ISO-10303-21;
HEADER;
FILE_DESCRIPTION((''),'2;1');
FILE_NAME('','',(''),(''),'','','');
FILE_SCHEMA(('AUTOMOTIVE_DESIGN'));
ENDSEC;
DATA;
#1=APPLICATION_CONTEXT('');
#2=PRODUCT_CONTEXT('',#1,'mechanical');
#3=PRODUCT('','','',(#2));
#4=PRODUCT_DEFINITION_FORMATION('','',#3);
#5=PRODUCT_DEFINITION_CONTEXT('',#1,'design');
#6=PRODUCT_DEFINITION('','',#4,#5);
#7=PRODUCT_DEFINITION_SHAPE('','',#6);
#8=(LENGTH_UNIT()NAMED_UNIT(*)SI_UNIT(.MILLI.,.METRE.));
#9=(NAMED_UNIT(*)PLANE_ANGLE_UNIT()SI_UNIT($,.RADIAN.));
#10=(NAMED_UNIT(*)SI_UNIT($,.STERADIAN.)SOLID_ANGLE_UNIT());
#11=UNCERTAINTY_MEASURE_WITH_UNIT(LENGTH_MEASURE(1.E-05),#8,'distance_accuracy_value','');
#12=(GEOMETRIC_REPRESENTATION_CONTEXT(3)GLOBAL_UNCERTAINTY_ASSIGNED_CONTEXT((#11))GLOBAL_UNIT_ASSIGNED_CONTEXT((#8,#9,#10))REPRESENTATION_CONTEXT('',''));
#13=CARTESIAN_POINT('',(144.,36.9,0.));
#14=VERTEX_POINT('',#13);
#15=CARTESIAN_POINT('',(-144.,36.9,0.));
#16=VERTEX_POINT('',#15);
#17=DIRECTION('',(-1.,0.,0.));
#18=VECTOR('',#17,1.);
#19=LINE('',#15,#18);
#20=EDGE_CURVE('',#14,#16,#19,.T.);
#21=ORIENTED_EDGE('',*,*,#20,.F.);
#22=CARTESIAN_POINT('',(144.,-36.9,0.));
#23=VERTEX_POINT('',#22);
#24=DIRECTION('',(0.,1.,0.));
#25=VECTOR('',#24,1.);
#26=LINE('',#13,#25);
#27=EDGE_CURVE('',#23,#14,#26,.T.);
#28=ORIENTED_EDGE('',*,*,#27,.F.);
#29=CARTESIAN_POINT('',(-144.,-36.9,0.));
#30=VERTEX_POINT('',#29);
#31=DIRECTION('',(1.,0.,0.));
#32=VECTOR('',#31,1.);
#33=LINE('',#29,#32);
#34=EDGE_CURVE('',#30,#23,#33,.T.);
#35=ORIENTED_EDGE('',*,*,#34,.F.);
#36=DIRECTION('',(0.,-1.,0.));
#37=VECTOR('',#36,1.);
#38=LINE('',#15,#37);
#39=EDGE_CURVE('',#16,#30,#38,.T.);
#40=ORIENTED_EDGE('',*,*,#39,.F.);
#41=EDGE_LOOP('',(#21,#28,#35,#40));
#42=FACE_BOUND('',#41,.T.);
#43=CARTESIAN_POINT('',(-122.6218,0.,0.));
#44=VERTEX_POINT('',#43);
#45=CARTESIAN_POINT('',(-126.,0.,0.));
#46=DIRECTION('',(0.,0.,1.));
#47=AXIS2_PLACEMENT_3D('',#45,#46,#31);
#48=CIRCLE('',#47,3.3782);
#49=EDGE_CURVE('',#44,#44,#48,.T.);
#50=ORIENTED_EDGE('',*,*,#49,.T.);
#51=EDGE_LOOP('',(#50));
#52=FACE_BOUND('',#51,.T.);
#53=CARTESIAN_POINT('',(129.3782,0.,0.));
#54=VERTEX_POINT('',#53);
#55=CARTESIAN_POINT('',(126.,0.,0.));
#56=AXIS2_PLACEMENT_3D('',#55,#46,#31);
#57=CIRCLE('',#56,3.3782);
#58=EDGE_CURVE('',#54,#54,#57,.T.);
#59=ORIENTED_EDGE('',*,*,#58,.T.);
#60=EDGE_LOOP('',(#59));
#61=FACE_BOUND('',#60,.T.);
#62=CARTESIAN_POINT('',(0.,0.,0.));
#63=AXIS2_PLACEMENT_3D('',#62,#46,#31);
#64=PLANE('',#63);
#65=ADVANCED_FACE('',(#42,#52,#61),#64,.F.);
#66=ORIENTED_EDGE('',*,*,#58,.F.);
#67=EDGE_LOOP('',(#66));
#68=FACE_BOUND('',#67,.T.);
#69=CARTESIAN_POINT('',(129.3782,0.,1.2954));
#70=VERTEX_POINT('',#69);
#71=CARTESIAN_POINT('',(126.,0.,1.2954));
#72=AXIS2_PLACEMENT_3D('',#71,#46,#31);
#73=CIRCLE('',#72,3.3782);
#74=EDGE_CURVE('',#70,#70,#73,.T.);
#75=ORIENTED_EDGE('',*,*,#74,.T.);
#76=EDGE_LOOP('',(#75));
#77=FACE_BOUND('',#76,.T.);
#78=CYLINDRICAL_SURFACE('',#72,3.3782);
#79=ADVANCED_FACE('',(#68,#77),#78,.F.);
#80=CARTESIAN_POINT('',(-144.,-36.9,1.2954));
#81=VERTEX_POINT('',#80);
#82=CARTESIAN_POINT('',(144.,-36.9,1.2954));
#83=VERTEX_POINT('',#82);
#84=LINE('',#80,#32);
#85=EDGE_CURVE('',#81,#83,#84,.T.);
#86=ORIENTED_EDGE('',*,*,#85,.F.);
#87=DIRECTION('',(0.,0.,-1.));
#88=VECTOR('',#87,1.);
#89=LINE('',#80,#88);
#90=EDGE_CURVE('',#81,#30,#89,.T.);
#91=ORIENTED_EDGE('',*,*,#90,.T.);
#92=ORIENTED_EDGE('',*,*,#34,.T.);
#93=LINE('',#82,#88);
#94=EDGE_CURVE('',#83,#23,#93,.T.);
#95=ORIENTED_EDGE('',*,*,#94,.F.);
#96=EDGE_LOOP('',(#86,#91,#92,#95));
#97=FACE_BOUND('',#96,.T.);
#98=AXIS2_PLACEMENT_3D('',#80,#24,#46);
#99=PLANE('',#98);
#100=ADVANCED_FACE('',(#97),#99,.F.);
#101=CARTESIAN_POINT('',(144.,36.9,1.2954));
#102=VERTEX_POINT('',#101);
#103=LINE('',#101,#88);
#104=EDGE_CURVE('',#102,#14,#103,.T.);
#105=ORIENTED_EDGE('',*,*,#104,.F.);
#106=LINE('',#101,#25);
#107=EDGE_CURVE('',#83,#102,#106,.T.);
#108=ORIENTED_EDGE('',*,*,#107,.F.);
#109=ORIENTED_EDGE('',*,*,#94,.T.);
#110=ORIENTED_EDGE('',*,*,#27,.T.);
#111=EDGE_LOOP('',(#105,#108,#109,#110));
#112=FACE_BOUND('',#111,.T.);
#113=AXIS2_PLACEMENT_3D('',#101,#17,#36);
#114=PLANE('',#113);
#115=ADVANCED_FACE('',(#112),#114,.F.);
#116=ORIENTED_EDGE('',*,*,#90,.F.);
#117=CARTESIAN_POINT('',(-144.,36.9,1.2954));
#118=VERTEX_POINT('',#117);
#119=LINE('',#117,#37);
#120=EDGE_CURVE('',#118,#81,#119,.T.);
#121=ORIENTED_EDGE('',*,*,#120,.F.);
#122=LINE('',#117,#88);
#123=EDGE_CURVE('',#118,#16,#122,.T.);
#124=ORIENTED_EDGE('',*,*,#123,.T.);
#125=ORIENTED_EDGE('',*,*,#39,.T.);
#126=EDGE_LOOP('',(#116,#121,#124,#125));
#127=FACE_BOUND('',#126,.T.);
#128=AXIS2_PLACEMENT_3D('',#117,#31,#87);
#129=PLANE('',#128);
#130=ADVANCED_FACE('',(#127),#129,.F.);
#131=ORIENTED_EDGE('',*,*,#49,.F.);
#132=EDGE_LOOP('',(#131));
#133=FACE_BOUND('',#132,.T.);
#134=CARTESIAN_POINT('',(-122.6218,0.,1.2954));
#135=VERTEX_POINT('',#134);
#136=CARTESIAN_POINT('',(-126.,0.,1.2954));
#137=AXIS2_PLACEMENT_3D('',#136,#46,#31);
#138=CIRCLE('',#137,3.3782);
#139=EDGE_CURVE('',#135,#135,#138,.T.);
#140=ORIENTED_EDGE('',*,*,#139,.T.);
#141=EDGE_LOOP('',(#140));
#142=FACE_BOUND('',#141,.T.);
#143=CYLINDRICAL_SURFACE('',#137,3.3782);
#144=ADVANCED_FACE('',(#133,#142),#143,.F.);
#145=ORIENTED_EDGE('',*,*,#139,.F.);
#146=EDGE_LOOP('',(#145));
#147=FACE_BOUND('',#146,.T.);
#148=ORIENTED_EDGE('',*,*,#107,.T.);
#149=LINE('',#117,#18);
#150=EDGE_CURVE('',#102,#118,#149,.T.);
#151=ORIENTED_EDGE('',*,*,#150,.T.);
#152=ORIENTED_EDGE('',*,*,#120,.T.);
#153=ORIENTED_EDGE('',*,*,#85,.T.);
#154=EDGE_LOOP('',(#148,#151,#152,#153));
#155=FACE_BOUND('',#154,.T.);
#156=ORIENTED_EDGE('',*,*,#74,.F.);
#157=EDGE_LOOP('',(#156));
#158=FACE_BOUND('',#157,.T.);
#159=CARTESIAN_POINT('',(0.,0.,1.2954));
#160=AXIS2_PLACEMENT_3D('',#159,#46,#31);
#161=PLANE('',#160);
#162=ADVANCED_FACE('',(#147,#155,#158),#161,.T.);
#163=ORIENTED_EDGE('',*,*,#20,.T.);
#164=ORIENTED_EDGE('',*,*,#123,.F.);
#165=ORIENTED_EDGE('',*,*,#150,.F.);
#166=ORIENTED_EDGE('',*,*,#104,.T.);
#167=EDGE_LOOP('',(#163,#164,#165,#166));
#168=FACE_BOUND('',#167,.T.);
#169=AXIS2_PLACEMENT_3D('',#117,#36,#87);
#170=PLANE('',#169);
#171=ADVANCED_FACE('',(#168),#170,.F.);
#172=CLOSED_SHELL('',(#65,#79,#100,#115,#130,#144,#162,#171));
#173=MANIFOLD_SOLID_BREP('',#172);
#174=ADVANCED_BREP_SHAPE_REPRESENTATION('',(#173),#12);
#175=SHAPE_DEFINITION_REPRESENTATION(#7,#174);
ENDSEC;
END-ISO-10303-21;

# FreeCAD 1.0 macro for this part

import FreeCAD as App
import Part
import Sketcher
Q = App.Units.Quantity

doc = App.newDocument("Part")
body = doc.addObject("PartDesign::Body", "Body")

sketch1 = body.newObject("Sketcher::SketchObject", "Sketch")
sketch1.AttachmentSupport = (doc.getObject("XY_Plane"), [""])
sketch1.MapMode = "FlatFace"
sketch1.addGeometry(Part.LineSegment(App.Vector(-144, 37, 0), App.Vector(-144, -37, 0)), False)
sketch1.addGeometry(Part.LineSegment(App.Vector(-144, -37, 0), App.Vector(144, -37, 0)), False)
sketch1.addGeometry(Part.LineSegment(App.Vector(144, -37, 0), App.Vector(144, 37, 0)), False)
sketch1.addGeometry(Part.LineSegment(App.Vector(144, 37, 0), App.Vector(-144, 37, 0)), False)
sketch1.addConstraint(Sketcher.Constraint("Coincident", 0, 2, 1, 1))
sketch1.addConstraint(Sketcher.Constraint("Coincident", 1, 2, 2, 1))
sketch1.addConstraint(Sketcher.Constraint("Coincident", 2, 2, 3, 1))
sketch1.addConstraint(Sketcher.Constraint("Coincident", 3, 2, 0, 1))
sketch1.addConstraint(Sketcher.Constraint("Vertical", 0))
sketch1.addConstraint(Sketcher.Constraint("Horizontal", 1))
sketch1.addConstraint(Sketcher.Constraint("Vertical", 2))
sketch1.addConstraint(Sketcher.Constraint("Horizontal", 3))
sketch1.addConstraint(Sketcher.Constraint("Symmetric", 0, 2, 2, 2, -1, 1))
sketch1.addConstraint(Sketcher.Constraint("DistanceX", 1, 1, 1, 2, Q("288 mm")))
sketch1.addConstraint(Sketcher.Constraint("DistanceY", 0, 2, 0, 1, Q("73.8 mm")))
pad1 = body.newObject("PartDesign::Pad", "Pad")
pad1.Profile = sketch1
pad1.Length = 1.2954

sketch2 = body.newObject("Sketcher::SketchObject", "Sketch001")
sketch2.AttachmentSupport = (doc.getObject("XY_Plane"), [""])
sketch2.MapMode = "FlatFace"
sketch2.AttachmentOffset = App.Placement(App.Vector(0, 0, 1.2954), App.Rotation())
sketch2.addGeometry(Part.Circle(App.Vector(-126, 0, 0), App.Vector(0, 0, 1), 3.4), False)
sketch2.addGeometry(Part.Circle(App.Vector(126, 0, 0), App.Vector(0, 0, 1), 3.4), False)
sketch2.addConstraint(Sketcher.Constraint("Equal", 0, 1))
sketch2.addConstraint(Sketcher.Constraint("Symmetric", 0, 3, 1, 3, -1, 1))
sketch2.addConstraint(Sketcher.Constraint("PointOnObject", 0, 3, -1))
sketch2.addConstraint(Sketcher.Constraint("DistanceX", 0, 3, -1, 1, Q("126 mm")))
sketch2.addConstraint(Sketcher.Constraint("Diameter", 0, Q("6.7564 mm")))
doc.recompute()
hole = body.newObject("PartDesign::Hole", "Hole")
hole.Profile = sketch2
hole.ThreadType = "None"
hole.Diameter = 6.7564
hole.DepthType = "ThroughAll"

doc.recompute()
